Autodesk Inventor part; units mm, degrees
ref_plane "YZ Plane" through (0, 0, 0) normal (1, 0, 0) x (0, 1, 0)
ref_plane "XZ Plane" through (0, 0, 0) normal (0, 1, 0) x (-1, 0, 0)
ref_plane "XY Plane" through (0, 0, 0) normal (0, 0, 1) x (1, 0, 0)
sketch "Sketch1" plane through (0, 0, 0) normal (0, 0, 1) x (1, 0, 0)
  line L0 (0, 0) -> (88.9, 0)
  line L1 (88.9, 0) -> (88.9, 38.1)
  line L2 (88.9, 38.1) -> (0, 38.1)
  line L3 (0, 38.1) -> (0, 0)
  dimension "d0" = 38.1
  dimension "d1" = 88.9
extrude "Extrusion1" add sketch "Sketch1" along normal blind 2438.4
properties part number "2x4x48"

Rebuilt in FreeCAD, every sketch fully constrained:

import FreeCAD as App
import Part
import Sketcher
Q = App.Units.Quantity


def add_polygon(sketch, points):
    """Adds a closed chain of lines whose ends are joined by coincident constraints."""
    first, n = sketch.GeometryCount, len(points)
    for a, b in zip(points, points[1:] + points[:1]):
        sketch.addGeometry(Part.LineSegment(App.Vector(*a, 0), App.Vector(*b, 0)), False)
    for i in range(n):
        sketch.addConstraint(Sketcher.Constraint("Coincident", first + i, 2, first + (i + 1) % n, 1))

doc = App.newDocument("Part")
params = doc.addObject("Spreadsheet::Sheet", "Params")
for row, (alias, value) in enumerate([
    ("sketch1_width", "3.5 in"),
    ("sketch1_height", "1.5 in"),
    ("pad1_length", "96 in"),
], start=1):
    params.set(f"A{row}", alias)
    params.set(f"B{row}", "=" + value)
    params.setAlias(f"B{row}", alias)

body = doc.addObject("PartDesign::Body", "Body")

# Sketch on XY plane
sketch1 = body.newObject("Sketcher::SketchObject", "Sketch")
sketch1.AttachmentSupport = (doc.getObject("XY_Plane"), [""])
sketch1.MapMode = "FlatFace"
add_polygon(sketch1, [(0, 38), (0, 0), (89, 0), (89, 38)])  # lines 0-3
sketch1.addConstraint([
    Sketcher.Constraint("Vertical", 0),
    Sketcher.Constraint("Horizontal", 1),
    Sketcher.Constraint("Vertical", 2),
    Sketcher.Constraint("Horizontal", 3),
    Sketcher.Constraint("Coincident", 0, 2, -1, 1),
    Sketcher.Constraint("DistanceX", 1, 1, 1, 2, Q("3.5 in")),
    Sketcher.Constraint("DistanceY", 0, 2, 0, 1, Q("1.5 in")),
])
sketch1.setExpression("Constraints[9]", "Params.sketch1_width")
sketch1.setExpression("Constraints[10]", "Params.sketch1_height")
pad1 = body.newObject("PartDesign::Pad", "Pad")
pad1.Profile = sketch1
pad1.setExpression("Length", "Params.pad1_length")

doc.recompute()
